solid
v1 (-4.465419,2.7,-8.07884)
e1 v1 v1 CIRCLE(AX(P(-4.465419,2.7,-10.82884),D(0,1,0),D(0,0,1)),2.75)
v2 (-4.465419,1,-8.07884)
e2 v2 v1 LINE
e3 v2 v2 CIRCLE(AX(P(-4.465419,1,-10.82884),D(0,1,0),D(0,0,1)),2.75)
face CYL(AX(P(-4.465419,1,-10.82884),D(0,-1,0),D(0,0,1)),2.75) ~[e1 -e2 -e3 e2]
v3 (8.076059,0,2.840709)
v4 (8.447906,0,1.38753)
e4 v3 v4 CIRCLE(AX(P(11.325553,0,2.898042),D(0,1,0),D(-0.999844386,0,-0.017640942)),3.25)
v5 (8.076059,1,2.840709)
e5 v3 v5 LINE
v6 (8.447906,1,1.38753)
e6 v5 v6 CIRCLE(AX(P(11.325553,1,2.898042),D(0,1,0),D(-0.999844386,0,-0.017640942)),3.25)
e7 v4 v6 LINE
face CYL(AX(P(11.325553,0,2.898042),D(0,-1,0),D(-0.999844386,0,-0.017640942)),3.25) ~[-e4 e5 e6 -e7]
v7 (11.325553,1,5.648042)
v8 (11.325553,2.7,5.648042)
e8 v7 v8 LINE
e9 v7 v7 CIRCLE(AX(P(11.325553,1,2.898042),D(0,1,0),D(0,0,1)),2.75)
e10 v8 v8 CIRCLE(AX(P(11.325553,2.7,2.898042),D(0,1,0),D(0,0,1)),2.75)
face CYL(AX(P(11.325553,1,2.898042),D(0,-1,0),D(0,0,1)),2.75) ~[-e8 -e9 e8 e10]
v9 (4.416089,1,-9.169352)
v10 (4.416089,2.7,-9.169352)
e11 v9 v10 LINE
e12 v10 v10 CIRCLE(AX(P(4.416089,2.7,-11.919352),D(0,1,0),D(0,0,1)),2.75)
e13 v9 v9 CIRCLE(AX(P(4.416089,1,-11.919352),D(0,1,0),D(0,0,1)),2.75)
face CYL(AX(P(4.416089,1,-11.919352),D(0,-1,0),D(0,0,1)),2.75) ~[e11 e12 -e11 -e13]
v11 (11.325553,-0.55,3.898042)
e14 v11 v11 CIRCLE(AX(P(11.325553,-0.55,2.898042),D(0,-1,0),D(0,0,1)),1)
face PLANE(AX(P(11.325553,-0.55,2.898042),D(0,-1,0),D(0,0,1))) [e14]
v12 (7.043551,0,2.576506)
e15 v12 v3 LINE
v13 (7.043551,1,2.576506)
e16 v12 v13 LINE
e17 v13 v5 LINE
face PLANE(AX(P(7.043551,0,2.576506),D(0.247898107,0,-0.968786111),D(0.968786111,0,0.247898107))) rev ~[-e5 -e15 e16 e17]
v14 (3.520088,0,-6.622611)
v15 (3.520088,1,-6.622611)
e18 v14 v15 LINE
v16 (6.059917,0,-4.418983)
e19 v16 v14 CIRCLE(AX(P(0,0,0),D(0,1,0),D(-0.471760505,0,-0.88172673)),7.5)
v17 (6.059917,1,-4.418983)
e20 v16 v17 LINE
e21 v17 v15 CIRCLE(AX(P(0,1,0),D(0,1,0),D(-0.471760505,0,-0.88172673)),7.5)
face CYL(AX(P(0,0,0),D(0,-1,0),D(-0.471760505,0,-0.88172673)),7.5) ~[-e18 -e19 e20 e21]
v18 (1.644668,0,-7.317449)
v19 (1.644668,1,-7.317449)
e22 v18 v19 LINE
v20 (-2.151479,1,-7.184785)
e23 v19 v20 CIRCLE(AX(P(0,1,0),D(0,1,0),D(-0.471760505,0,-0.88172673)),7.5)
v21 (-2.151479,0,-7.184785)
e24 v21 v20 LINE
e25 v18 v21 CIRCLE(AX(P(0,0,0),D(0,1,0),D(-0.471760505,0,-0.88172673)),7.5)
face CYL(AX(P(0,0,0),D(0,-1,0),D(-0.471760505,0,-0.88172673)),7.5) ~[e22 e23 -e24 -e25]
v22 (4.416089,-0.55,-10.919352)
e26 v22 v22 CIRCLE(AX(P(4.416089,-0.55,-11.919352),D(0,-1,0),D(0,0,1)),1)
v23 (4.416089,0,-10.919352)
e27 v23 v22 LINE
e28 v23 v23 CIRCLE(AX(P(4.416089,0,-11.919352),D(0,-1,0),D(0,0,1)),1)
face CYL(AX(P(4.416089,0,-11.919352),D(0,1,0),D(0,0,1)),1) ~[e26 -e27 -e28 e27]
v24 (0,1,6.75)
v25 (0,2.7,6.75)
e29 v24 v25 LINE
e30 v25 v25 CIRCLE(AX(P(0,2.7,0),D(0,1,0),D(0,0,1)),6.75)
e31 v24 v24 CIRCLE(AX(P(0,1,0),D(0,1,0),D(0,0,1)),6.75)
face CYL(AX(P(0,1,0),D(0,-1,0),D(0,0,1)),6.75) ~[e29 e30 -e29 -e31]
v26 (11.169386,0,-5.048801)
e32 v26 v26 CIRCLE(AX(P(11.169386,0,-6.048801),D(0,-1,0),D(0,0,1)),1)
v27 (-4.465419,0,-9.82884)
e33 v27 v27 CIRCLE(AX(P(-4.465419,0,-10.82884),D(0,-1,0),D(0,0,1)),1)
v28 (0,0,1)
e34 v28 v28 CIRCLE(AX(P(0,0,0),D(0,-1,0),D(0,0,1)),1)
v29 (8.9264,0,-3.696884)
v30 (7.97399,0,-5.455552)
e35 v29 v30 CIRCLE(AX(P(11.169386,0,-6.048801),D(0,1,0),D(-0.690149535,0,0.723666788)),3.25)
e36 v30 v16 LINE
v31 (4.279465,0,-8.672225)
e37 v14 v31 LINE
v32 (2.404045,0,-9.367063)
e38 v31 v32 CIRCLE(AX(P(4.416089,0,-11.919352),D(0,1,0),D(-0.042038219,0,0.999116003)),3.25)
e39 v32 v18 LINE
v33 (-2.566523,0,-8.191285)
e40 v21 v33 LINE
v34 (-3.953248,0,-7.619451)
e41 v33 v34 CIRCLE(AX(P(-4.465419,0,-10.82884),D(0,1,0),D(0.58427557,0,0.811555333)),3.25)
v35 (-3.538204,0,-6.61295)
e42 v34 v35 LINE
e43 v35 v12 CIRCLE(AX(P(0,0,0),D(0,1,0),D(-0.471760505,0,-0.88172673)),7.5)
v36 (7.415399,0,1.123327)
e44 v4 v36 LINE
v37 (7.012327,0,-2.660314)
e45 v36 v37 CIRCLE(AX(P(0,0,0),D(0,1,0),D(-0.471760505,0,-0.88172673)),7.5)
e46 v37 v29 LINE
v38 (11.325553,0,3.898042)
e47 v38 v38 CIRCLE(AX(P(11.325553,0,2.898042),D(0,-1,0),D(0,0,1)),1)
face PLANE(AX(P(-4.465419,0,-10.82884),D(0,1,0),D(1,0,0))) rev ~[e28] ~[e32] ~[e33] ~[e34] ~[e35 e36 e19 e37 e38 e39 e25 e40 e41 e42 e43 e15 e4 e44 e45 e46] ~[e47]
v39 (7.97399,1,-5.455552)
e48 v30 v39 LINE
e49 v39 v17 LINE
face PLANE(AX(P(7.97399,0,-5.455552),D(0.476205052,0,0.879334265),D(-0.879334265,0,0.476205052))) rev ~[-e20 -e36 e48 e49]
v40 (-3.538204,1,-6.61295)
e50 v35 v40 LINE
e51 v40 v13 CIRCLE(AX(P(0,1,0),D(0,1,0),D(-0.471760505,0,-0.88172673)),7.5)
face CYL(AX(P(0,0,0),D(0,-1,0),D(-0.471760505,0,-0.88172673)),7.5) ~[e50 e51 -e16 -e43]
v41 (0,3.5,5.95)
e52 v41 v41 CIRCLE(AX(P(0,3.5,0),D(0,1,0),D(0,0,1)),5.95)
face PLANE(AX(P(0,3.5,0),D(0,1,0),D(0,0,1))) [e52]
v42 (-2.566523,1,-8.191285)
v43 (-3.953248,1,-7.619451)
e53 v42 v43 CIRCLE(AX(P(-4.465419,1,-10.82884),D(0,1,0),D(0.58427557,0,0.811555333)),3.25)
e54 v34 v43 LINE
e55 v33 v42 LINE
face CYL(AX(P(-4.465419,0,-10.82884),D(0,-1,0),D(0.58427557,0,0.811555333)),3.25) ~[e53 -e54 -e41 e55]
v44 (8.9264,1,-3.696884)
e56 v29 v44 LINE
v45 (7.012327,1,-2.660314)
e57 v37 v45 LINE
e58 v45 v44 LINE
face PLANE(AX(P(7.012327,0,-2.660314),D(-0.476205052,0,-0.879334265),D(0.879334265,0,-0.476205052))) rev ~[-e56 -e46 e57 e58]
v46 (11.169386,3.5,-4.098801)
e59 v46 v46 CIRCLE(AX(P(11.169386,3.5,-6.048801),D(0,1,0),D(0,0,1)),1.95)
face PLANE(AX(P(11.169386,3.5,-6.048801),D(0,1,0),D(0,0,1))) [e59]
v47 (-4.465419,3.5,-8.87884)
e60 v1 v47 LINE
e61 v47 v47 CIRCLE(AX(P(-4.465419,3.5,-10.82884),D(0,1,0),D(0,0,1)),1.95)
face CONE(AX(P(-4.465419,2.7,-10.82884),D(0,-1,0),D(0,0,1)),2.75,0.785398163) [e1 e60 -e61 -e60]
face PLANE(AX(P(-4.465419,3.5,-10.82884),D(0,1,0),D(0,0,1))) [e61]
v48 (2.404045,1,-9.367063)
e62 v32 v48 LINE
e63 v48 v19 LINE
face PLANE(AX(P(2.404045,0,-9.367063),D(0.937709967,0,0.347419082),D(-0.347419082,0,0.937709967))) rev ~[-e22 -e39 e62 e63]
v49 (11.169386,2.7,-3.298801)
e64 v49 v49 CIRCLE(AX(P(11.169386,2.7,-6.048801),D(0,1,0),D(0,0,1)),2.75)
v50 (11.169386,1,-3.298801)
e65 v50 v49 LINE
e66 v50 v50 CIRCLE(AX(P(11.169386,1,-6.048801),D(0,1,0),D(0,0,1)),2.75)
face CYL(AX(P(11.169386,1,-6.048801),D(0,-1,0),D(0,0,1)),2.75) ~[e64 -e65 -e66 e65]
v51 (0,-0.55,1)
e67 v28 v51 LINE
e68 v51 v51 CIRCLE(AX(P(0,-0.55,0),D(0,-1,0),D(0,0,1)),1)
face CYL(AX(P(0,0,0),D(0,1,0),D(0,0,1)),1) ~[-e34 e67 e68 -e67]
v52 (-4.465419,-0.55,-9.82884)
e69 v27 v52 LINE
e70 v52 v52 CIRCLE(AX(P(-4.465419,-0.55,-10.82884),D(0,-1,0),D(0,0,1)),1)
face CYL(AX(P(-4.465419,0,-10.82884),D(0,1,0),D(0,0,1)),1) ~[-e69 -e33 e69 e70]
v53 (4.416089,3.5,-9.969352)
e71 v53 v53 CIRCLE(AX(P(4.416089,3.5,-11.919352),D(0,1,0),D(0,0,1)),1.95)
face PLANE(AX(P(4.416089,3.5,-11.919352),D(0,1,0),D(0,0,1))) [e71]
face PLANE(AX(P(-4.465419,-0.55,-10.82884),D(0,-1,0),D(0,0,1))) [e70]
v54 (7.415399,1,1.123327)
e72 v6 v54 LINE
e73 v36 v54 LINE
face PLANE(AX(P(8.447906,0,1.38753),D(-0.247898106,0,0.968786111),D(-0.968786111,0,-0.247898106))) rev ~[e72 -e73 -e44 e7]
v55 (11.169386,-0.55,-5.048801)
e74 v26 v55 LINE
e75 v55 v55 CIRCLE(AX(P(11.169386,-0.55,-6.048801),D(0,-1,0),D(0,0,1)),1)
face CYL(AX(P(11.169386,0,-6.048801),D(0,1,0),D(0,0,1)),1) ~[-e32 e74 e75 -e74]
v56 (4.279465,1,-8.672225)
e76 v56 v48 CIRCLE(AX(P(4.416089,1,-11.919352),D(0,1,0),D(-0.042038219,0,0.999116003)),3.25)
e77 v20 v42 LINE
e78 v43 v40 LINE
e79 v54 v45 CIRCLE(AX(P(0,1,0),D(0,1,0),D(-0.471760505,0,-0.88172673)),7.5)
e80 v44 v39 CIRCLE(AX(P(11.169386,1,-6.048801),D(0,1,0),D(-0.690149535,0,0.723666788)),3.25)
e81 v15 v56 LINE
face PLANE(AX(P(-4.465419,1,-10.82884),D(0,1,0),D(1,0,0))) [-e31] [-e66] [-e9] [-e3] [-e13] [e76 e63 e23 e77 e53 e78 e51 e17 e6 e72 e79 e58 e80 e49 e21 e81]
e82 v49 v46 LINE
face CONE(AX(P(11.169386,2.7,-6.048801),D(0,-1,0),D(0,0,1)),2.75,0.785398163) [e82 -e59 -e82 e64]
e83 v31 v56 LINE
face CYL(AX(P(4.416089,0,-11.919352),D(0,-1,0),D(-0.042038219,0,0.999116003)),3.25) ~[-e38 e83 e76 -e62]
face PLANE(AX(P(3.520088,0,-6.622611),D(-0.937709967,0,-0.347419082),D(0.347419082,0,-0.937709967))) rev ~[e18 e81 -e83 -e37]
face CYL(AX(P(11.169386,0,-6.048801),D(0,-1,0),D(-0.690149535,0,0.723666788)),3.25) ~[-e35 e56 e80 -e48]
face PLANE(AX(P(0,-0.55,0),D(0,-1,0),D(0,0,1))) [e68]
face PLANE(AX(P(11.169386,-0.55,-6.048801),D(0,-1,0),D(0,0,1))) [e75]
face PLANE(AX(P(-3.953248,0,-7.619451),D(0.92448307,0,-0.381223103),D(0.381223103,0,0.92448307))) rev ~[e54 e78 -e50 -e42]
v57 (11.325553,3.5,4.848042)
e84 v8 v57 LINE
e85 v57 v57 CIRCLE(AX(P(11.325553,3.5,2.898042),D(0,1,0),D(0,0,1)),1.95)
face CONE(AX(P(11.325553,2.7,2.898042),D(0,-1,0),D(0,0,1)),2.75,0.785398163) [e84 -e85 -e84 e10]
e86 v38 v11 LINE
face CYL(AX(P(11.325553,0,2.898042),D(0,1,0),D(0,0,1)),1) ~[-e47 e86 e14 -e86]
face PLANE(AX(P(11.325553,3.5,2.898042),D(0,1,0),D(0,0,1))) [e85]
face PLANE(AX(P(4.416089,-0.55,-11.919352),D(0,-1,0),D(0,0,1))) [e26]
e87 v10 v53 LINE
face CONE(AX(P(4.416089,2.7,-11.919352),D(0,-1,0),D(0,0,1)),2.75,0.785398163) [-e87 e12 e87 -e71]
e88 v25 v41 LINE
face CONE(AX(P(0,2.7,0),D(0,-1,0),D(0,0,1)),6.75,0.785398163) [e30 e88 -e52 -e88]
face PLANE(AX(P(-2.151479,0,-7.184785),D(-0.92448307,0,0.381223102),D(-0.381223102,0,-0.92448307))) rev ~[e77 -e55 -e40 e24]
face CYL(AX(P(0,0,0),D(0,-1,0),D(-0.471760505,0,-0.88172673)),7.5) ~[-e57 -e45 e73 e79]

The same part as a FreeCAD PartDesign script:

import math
import FreeCAD as App
import Part
import Sketcher

V = App.Vector


def edges_at(feature, points):
    """Names of the edges that pass closest to the given points."""
    edges = feature.Shape.Edges
    near = lambda p: min(range(len(edges)), key=lambda i: edges[i].distToShape(Part.Vertex(*p))[0])
    return sorted({f"Edge{near(p) + 1}" for p in points})

doc = App.newDocument("Part")
params = doc.addObject("Spreadsheet::Sheet", "Params")
for row, (alias, value) in enumerate([
    ("sketch1_radius", "7.5 mm"),
    ("sketch1_radius2", "3.25 mm"),
    ("pad1_length", "1 mm"),
    ("sketch2_diameter", "13.5 mm"),
    ("sketch2_diameter2", "5.5 mm"),
    ("pad2_length", "2.5 mm"),
    ("chamfer_size", "0.8 mm"),
    ("sketch3_diameter", "2 mm"),
    ("pad3_length", "0.55 mm"),
], start=1):
    params.set(f"A{row}", alias)
    params.set(f"B{row}", "=" + value)
    params.setAlias(f"B{row}", alias)

body = doc.addObject("PartDesign::Body", "Body")

sketch1 = body.newObject("Sketcher::SketchObject", "Sketch")
sketch1.AttachmentSupport = (doc.getObject("XZ_Plane"), [""])
sketch1.MapMode = "FlatFace"
sketch1.addGeometry(Part.LineSegment(V(-4, -7.6, 0), V(-3.5, -6.6, 0)), False)
sketch1.addGeometry(Part.ArcOfCircle(Part.Circle(V(0, 0, 0), V(0, 0, 1), 7.5), math.radians(20), math.radians(242)), False)
sketch1.addGeometry(Part.LineSegment(V(7, 2.6, 0), V(8.1, 2.8, 0)), False)
sketch1.addGeometry(Part.ArcOfCircle(Part.Circle(V(11.3, 2.9, 0), V(0, 0, 1), 3.2), math.radians(-152), math.radians(181)), False)
sketch1.addGeometry(Part.LineSegment(V(8.4, 1.4, 0), V(7.4, 1.1, 0)), False)
sketch1.addGeometry(Part.ArcOfCircle(Part.Circle(V(0, 0, 0), V(0, 0, 1), 7.5), math.radians(-21), math.radians(9)), False)
sketch1.addGeometry(Part.LineSegment(V(7, -2.7, 0), V(8.9, -3.7, 0)), False)
sketch1.addGeometry(Part.ArcOfCircle(Part.Circle(V(11.2, -6, 0), V(0, 0, 1), 3.2), math.radians(169), math.radians(494)), False)
sketch1.addGeometry(Part.LineSegment(V(8, -5.5, 0), V(6.1, -4.4, 0)), False)
sketch1.addGeometry(Part.ArcOfCircle(Part.Circle(V(0, 0, 0), V(0, 0, 1), 7.5), math.radians(-62), math.radians(-36)), False)
sketch1.addGeometry(Part.LineSegment(V(3.5, -6.6, 0), V(4.3, -8.7, 0)), False)
sketch1.addGeometry(Part.ArcOfCircle(Part.Circle(V(4.4, -11.9, 0), V(0, 0, 1), 3.2), math.radians(128), math.radians(452)), False)
sketch1.addGeometry(Part.LineSegment(V(2.4, -9.4, 0), V(1.6, -7.3, 0)), False)
sketch1.addGeometry(Part.ArcOfCircle(Part.Circle(V(0, 0, 0), V(0, 0, 1), 7.5), math.radians(-107), math.radians(-77)), False)
sketch1.addGeometry(Part.LineSegment(V(-2.2, -7.2, 0), V(-2.6, -8.2, 0)), False)
sketch1.addGeometry(Part.ArcOfCircle(Part.Circle(V(-4.5, -10.8, 0), V(0, 0, 1), 3.2), math.radians(81), math.radians(414)), False)
sketch1.addConstraint(Sketcher.Constraint("Coincident", 0, 2, 1, 2))
sketch1.addConstraint(Sketcher.Constraint("Coincident", 1, 1, 2, 1))
sketch1.addConstraint(Sketcher.Constraint("Coincident", 2, 2, 3, 2))
sketch1.addConstraint(Sketcher.Constraint("Coincident", 3, 1, 4, 1))
sketch1.addConstraint(Sketcher.Constraint("Coincident", 4, 2, 5, 2))
sketch1.addConstraint(Sketcher.Constraint("Coincident", 5, 1, 6, 1))
sketch1.addConstraint(Sketcher.Constraint("Coincident", 6, 2, 7, 2))
sketch1.addConstraint(Sketcher.Constraint("Coincident", 7, 1, 8, 1))
sketch1.addConstraint(Sketcher.Constraint("Coincident", 8, 2, 9, 2))
sketch1.addConstraint(Sketcher.Constraint("Coincident", 9, 1, 10, 1))
sketch1.addConstraint(Sketcher.Constraint("Coincident", 10, 2, 11, 2))
sketch1.addConstraint(Sketcher.Constraint("Coincident", 11, 1, 12, 1))
sketch1.addConstraint(Sketcher.Constraint("Coincident", 12, 2, 13, 2))
sketch1.addConstraint(Sketcher.Constraint("Coincident", 13, 1, 14, 1))
sketch1.addConstraint(Sketcher.Constraint("Coincident", 14, 2, 15, 2))
sketch1.addConstraint(Sketcher.Constraint("Coincident", 15, 1, 0, 1))
sketch1.addConstraint(Sketcher.Constraint("Coincident", 1, 3, -1, 1))
sketch1.addConstraint(Sketcher.Constraint("Coincident", 5, 3, -1, 1))
sketch1.addConstraint(Sketcher.Constraint("Coincident", 9, 3, -1, 1))
sketch1.addConstraint(Sketcher.Constraint("Coincident", 13, 3, -1, 1))
sketch1.addConstraint(Sketcher.Constraint("Equal", 1, 5))
sketch1.addConstraint(Sketcher.Constraint("Equal", 3, 7))
sketch1.addConstraint(Sketcher.Constraint("Equal", 5, 9))
sketch1.addConstraint(Sketcher.Constraint("Equal", 7, 11))
sketch1.addConstraint(Sketcher.Constraint("Equal", 9, 13))
sketch1.addConstraint(Sketcher.Constraint("Equal", 11, 15))
sketch1.addConstraint(Sketcher.Constraint("Parallel", 2, 4))
sketch1.addConstraint(Sketcher.Constraint("Parallel", 6, 8))
sketch1.addConstraint(Sketcher.Constraint("Parallel", 10, 12))
sketch1.addConstraint(Sketcher.Constraint("Parallel", 0, 14))
sketch1.addConstraint(Sketcher.Constraint("Equal", 2, 4))
sketch1.addConstraint(Sketcher.Constraint("Equal", 6, 8))
sketch1.addConstraint(Sketcher.Constraint("Equal", 10, 12))
sketch1.addConstraint(Sketcher.Constraint("Equal", 0, 14))
sketch1.addConstraint(Sketcher.Constraint("Radius", 1, 7.5))
sketch1.addConstraint(Sketcher.Constraint("Radius", 3, 3.25))
sketch1.addConstraint(Sketcher.Constraint("DistanceX", 1, 1, 3, 3, 4.282002))
sketch1.addConstraint(Sketcher.Constraint("DistanceX", 4, 2, 6, 2, 1.511001))
sketch1.addConstraint(Sketcher.Constraint("DistanceX", 9, 1, 11, 3, 0.896001))
sketch1.addConstraint(Sketcher.Constraint("DistanceY", 15, 1, 12, 2, 0.302001))
sketch1.addConstraint(Sketcher.Constraint("DistanceY", 7, 3, -1, 1, 6.048801))
sketch1.addConstraint(Sketcher.Constraint("DistanceX", -1, 1, 4, 2, 7.415399))
sketch1.addConstraint(Sketcher.Constraint("DistanceY", 8, 2, 6, 2, 0.722099))
sketch1.addConstraint(Sketcher.Constraint("DistanceX", 9, 1, 7, 1, 4.453902))
sketch1.addConstraint(Sketcher.Constraint("DistanceY", 12, 2, 0, 2, 0.704499))
sketch1.addConstraint(Sketcher.Constraint("Distance", 6, 2.176729))
sketch1.addConstraint(Sketcher.Constraint("DistanceX", 15, 3, -1, 1, 4.465419))
sketch1.addConstraint(Sketcher.Constraint("DistanceY", 15, 3, -1, 1, 10.82884))
sketch1.addConstraint(Sketcher.Constraint("DistanceY", 0, 2, -1, 1, 6.61295))
sketch1.addConstraint(Sketcher.Constraint("DistanceX", -1, 1, 1, 1, 7.043551))
sketch1.addConstraint(Sketcher.Constraint("DistanceY", -1, 1, 2, 2, 2.840709))
sketch1.addConstraint(Sketcher.Constraint("DistanceY", 11, 3, 7, 3, 5.870551))
sketch1.setExpression("Constraints[34]", "Params.sketch1_radius")
sketch1.setExpression("Constraints[35]", "Params.sketch1_radius2")
pad1 = body.newObject("PartDesign::Pad", "Pad")
pad1.Profile = sketch1
pad1.setExpression("Length", "Params.pad1_length")
pad1.Reversed = True

sketch2 = body.newObject("Sketcher::SketchObject", "Sketch001")
sketch2.AttachmentSupport = (doc.getObject("XZ_Plane"), [""])
sketch2.MapMode = "FlatFace"
sketch2.AttachmentOffset = App.Placement(V(0, 0, -1), App.Rotation())
sketch2.addGeometry(Part.Circle(V(0, 0, 0), V(0, 0, 1), 6.8), False)
sketch2.addGeometry(Part.Circle(V(-4.5, -10.8, 0), V(0, 0, 1), 2.8), False)
sketch2.addGeometry(Part.Circle(V(4.4, -11.9, 0), V(0, 0, 1), 2.8), False)
sketch2.addGeometry(Part.Circle(V(11.2, -6, 0), V(0, 0, 1), 2.8), False)
sketch2.addGeometry(Part.Circle(V(11.3, 2.9, 0), V(0, 0, 1), 2.8), False)
sketch2.addConstraint(Sketcher.Constraint("Coincident", 0, 3, -1, 1))
sketch2.addConstraint(Sketcher.Constraint("Equal", 1, 2))
sketch2.addConstraint(Sketcher.Constraint("Equal", 2, 3))
sketch2.addConstraint(Sketcher.Constraint("Equal", 3, 4))
sketch2.addConstraint(Sketcher.Constraint("Diameter", 0, 13.5))
sketch2.addConstraint(Sketcher.Constraint("Diameter", 1, 5.5))
sketch2.addConstraint(Sketcher.Constraint("DistanceY", 3, 3, -1, 1, 6.048801))
sketch2.addConstraint(Sketcher.Constraint("DistanceX", 1, 3, -1, 1, 4.465419))
sketch2.addConstraint(Sketcher.Constraint("DistanceY", 1, 3, -1, 1, 10.82884))
sketch2.addConstraint(Sketcher.Constraint("DistanceX", -1, 1, 2, 3, 4.416089))
sketch2.addConstraint(Sketcher.Constraint("DistanceY", 2, 3, 3, 3, 5.870551))
sketch2.addConstraint(Sketcher.Constraint("DistanceX", -1, 1, 3, 3, 11.169386))
sketch2.addConstraint(Sketcher.Constraint("DistanceX", -1, 1, 4, 3, 11.325553))
sketch2.addConstraint(Sketcher.Constraint("DistanceY", -1, 1, 4, 3, 2.898042))
sketch2.setExpression("Constraints[4]", "Params.sketch2_diameter")
sketch2.setExpression("Constraints[5]", "Params.sketch2_diameter2")
pad2 = body.newObject("PartDesign::Pad", "Pad001")
pad2.Profile = sketch2
pad2.setExpression("Length", "Params.pad2_length")
pad2.Reversed = True
doc.recompute()

chamfer = body.newObject("PartDesign::Chamfer", "Chamfer")
chamfer.Base = (pad2, edges_at(pad2, [
    (0, 3.5, -6.75),
    (-4.465, 3.5, -13.579),
    (4.416, 3.5, -14.669),
    (11.169, 3.5, -8.799),
    (11.326, 3.5, 0.148),
]))
chamfer.setExpression("Size", "Params.chamfer_size")

sketch3 = body.newObject("Sketcher::SketchObject", "Sketch002")
sketch3.AttachmentSupport = (doc.getObject("XZ_Plane"), [""])
sketch3.MapMode = "FlatFace"
sketch3.addGeometry(Part.Circle(V(0, 0, 0), V(0, 0, 1), 1), False)
sketch3.addGeometry(Part.Circle(V(11.3, 2.9, 0), V(0, 0, 1), 1), False)
sketch3.addGeometry(Part.Circle(V(11.2, -6, 0), V(0, 0, 1), 1), False)
sketch3.addGeometry(Part.Circle(V(4.4, -11.9, 0), V(0, 0, 1), 1), False)
sketch3.addGeometry(Part.Circle(V(-4.5, -10.8, 0), V(0, 0, 1), 1), False)
sketch3.addConstraint(Sketcher.Constraint("Coincident", 0, 3, -1, 1))
sketch3.addConstraint(Sketcher.Constraint("Equal", 0, 1))
sketch3.addConstraint(Sketcher.Constraint("Equal", 1, 2))
sketch3.addConstraint(Sketcher.Constraint("Equal", 2, 3))
sketch3.addConstraint(Sketcher.Constraint("Equal", 3, 4))
sketch3.addConstraint(Sketcher.Constraint("Diameter", 0, 2.0))
sketch3.addConstraint(Sketcher.Constraint("DistanceY", 2, 3, -1, 1, 6.048801))
sketch3.addConstraint(Sketcher.Constraint("DistanceX", -1, 1, 3, 3, 4.416089))
sketch3.addConstraint(Sketcher.Constraint("DistanceX", 4, 3, -1, 1, 4.465419))
sketch3.addConstraint(Sketcher.Constraint("DistanceY", 4, 3, -1, 1, 10.82884))
sketch3.addConstraint(Sketcher.Constraint("DistanceY", 3, 3, 2, 3, 5.870551))
sketch3.addConstraint(Sketcher.Constraint("DistanceX", -1, 1, 1, 3, 11.325553))
sketch3.addConstraint(Sketcher.Constraint("DistanceY", -1, 1, 1, 3, 2.898042))
sketch3.addConstraint(Sketcher.Constraint("DistanceX", -1, 1, 2, 3, 11.169386))
sketch3.setExpression("Constraints[5]", "Params.sketch3_diameter")
pad3 = body.newObject("PartDesign::Pad", "Pad002")
pad3.Profile = sketch3
pad3.setExpression("Length", "Params.pad3_length")

doc.recompute()
